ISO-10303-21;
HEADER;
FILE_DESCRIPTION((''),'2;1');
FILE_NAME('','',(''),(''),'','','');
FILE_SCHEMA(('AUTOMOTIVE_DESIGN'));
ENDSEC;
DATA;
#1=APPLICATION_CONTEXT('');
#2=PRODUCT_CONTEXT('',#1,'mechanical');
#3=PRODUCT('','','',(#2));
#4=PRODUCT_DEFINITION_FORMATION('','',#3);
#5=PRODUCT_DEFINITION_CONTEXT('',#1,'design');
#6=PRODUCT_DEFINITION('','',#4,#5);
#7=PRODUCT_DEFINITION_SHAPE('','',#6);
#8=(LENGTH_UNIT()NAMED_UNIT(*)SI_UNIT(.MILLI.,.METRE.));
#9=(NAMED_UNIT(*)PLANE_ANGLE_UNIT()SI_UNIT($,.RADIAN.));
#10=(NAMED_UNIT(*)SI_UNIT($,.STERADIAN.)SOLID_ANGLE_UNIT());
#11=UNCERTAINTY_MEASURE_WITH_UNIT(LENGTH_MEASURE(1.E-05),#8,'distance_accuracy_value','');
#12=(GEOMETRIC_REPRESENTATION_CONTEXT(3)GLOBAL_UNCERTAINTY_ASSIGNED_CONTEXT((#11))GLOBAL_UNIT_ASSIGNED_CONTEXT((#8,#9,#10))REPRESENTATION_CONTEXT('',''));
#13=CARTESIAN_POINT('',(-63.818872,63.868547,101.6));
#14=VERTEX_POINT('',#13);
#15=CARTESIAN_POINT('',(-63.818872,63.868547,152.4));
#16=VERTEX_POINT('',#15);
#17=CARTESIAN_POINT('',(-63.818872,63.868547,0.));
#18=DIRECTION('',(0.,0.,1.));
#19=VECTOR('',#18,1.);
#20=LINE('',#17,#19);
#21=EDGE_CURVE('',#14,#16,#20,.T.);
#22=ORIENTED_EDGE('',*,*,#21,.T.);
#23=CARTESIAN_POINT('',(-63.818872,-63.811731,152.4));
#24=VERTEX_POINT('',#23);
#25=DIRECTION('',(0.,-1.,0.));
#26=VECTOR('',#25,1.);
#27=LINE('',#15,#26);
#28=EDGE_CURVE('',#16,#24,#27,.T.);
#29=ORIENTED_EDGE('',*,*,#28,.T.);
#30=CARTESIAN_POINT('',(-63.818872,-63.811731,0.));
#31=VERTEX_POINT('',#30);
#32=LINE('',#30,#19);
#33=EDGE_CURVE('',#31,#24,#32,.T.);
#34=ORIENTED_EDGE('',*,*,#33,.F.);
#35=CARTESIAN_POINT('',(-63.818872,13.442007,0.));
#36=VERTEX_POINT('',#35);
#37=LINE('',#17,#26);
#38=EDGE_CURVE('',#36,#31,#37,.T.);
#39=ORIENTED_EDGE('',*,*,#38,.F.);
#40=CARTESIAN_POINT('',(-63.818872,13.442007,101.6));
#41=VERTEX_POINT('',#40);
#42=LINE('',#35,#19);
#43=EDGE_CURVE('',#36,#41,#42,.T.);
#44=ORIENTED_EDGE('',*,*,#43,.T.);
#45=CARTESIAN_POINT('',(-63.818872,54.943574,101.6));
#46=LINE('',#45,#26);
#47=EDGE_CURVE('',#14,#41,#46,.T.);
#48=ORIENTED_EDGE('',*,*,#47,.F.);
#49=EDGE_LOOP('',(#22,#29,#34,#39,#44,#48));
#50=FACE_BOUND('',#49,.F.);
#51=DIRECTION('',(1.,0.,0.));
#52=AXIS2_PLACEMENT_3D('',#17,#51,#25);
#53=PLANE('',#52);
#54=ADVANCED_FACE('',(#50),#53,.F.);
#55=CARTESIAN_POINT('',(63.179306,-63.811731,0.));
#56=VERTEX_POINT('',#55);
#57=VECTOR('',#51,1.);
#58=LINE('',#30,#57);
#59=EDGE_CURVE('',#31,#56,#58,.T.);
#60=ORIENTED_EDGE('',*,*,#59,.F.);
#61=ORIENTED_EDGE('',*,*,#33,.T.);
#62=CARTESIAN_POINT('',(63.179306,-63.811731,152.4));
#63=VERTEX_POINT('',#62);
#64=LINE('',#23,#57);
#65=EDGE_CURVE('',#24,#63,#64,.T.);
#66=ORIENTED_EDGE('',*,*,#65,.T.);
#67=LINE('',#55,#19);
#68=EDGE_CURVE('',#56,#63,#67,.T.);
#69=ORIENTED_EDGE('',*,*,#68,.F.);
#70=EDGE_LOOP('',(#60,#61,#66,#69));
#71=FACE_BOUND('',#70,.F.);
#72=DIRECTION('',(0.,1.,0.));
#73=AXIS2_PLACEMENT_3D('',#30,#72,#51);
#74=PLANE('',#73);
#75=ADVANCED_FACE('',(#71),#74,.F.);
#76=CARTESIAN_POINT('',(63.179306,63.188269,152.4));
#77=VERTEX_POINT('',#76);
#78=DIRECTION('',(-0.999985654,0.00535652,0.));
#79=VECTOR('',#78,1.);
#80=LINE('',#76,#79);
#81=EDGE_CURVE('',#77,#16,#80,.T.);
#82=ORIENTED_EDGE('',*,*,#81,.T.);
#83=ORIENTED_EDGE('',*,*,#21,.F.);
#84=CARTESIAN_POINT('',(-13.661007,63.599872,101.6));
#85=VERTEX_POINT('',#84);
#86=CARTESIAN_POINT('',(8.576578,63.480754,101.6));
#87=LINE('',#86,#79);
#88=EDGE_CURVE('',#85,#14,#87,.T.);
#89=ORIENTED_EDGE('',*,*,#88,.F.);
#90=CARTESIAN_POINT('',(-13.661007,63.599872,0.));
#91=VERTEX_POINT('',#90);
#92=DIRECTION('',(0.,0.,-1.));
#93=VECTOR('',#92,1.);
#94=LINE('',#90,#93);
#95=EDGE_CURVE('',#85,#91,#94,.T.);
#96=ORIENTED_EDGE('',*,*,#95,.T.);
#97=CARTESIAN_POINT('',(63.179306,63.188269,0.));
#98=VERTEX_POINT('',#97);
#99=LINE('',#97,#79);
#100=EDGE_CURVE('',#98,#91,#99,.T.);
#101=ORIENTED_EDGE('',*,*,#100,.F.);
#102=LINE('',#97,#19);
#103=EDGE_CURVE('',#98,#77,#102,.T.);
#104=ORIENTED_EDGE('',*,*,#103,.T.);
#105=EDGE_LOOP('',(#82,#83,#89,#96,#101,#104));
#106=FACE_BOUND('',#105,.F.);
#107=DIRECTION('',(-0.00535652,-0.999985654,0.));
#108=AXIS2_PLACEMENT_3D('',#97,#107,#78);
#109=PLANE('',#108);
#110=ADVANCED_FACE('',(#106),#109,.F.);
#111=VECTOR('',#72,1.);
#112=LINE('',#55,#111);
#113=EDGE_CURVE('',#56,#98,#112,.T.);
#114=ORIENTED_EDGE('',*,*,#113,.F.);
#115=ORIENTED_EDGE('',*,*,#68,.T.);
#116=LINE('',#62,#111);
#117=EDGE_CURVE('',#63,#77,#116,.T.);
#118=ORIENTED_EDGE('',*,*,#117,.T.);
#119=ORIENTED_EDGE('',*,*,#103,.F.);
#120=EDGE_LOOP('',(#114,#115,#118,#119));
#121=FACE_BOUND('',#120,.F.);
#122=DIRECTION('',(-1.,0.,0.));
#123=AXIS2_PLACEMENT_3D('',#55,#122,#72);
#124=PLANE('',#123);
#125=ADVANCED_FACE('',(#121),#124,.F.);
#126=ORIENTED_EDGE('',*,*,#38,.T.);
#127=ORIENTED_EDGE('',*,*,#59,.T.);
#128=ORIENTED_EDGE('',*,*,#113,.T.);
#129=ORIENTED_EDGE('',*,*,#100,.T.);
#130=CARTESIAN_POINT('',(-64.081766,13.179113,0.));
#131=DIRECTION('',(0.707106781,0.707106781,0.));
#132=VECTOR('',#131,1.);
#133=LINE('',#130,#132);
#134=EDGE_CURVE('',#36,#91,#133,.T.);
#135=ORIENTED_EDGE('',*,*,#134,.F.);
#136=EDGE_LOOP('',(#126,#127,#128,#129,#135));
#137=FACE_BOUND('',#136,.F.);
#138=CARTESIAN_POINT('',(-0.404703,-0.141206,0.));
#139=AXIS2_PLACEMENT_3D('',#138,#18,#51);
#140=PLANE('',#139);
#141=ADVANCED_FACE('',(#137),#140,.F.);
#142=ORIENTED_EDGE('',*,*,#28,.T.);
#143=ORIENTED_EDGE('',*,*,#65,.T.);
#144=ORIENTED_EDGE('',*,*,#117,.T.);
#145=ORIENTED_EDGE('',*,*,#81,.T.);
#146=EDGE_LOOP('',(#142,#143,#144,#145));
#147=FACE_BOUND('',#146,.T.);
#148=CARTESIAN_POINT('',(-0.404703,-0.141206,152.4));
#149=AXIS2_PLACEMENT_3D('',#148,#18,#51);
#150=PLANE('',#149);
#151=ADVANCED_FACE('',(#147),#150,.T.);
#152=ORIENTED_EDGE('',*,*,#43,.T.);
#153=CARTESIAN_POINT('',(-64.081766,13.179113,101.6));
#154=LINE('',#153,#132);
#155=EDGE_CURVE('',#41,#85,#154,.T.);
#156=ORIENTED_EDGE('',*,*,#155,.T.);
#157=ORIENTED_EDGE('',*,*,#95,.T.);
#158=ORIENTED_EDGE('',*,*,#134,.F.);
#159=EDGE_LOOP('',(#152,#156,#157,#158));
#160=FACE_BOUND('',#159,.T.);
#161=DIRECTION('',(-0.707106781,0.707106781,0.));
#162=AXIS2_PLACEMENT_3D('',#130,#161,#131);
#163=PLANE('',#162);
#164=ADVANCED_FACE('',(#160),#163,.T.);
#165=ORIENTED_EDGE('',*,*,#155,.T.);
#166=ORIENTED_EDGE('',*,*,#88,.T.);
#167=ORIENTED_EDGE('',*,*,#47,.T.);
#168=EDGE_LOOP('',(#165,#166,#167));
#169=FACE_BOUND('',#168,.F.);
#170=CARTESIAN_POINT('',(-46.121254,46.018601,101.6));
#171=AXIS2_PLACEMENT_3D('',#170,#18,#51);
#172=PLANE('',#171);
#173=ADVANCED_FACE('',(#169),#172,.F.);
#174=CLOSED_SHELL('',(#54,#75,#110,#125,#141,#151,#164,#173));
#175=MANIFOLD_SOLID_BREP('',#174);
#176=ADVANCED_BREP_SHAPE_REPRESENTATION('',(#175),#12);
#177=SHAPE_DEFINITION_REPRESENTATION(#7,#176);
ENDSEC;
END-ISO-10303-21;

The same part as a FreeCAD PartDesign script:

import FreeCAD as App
import Part
import Sketcher
Q = App.Units.Quantity

doc = App.newDocument("Part")
body = doc.addObject("PartDesign::Body", "Body")

sketch1 = body.newObject("Sketcher::SketchObject", "Sketch")
sketch1.AttachmentSupport = (doc.getObject("XY_Plane"), [""])
sketch1.MapMode = "FlatFace"
sketch1.addGeometry([
    Part.LineSegment(App.Vector(63.179306, 63.188269, 0), App.Vector(-63.818872, 63.868547, 0)),
    Part.LineSegment(App.Vector(-63.818872, 63.868547, 0), App.Vector(-63.818872, -63.811731, 0)),
    Part.LineSegment(App.Vector(-63.818872, -63.811731, 0), App.Vector(63.179306, -63.811731, 0)),
    Part.LineSegment(App.Vector(63.179306, -63.811731, 0), App.Vector(63.179306, 63.188269, 0)),
], False)
sketch1.addConstraint([
    Sketcher.Constraint("Coincident", 0, 2, 1, 1),
    Sketcher.Constraint("Coincident", 1, 2, 2, 1),
    Sketcher.Constraint("Coincident", 2, 2, 3, 1),
    Sketcher.Constraint("Coincident", 3, 2, 0, 1),
    Sketcher.Constraint("Vertical", 1),
    Sketcher.Constraint("Horizontal", 2),
    Sketcher.Constraint("Vertical", 3),
    Sketcher.Constraint("DistanceY", 3, 1, 3, 2, Q("5 in")),
    Sketcher.Constraint("Distance", 0, Q("5 in")),
    Sketcher.Constraint("DistanceY", 1, 2, 1, 1, Q("127.680278 mm")),
    Sketcher.Constraint("DistanceY", 1, 2, -1, 1, Q("63.811731 mm")),
    Sketcher.Constraint("DistanceX", 0, 2, -1, 1, Q("63.818872 mm")),
])
pad1 = body.newObject("PartDesign::Pad", "Pad")
pad1.Profile = sketch1
pad1.Length = Q("6 in")

sketch2 = body.newObject("Sketcher::SketchObject", "Sketch001")
sketch2.AttachmentSupport = (doc.getObject("XY_Plane"), [""])
sketch2.MapMode = "FlatFace"
sketch2.addGeometry([
    Part.LineSegment(App.Vector(-13.281766, 63.979113, 0), App.Vector(-64.081766, 63.979113, 0)),
    Part.LineSegment(App.Vector(-64.081766, 63.979113, 0), App.Vector(-64.081766, 13.179113, 0)),
    Part.LineSegment(App.Vector(-64.081766, 13.179113, 0), App.Vector(-13.281766, 63.979113, 0)),
], False)
sketch2.addConstraint([
    Sketcher.Constraint("Coincident", 0, 2, 1, 1),
    Sketcher.Constraint("Coincident", 1, 2, 2, 1),
    Sketcher.Constraint("Coincident", 2, 2, 0, 1),
    Sketcher.Constraint("Horizontal", 0),
    Sketcher.Constraint("Vertical", 1),
    Sketcher.Constraint("Equal", 0, 1),
    Sketcher.Constraint("DistanceX", 0, 2, 0, 1, Q("2 in")),
    Sketcher.Constraint("DistanceX", 0, 2, -1, 1, Q("64.081766 mm")),
    Sketcher.Constraint("DistanceY", -1, 1, 0, 2, Q("63.979113 mm")),
])
pocket1 = body.newObject("PartDesign::Pocket", "Pocket")
pocket1.Profile = sketch2
pocket1.Length = Q("4 in")
pocket1.Reversed = True

doc.recompute()
